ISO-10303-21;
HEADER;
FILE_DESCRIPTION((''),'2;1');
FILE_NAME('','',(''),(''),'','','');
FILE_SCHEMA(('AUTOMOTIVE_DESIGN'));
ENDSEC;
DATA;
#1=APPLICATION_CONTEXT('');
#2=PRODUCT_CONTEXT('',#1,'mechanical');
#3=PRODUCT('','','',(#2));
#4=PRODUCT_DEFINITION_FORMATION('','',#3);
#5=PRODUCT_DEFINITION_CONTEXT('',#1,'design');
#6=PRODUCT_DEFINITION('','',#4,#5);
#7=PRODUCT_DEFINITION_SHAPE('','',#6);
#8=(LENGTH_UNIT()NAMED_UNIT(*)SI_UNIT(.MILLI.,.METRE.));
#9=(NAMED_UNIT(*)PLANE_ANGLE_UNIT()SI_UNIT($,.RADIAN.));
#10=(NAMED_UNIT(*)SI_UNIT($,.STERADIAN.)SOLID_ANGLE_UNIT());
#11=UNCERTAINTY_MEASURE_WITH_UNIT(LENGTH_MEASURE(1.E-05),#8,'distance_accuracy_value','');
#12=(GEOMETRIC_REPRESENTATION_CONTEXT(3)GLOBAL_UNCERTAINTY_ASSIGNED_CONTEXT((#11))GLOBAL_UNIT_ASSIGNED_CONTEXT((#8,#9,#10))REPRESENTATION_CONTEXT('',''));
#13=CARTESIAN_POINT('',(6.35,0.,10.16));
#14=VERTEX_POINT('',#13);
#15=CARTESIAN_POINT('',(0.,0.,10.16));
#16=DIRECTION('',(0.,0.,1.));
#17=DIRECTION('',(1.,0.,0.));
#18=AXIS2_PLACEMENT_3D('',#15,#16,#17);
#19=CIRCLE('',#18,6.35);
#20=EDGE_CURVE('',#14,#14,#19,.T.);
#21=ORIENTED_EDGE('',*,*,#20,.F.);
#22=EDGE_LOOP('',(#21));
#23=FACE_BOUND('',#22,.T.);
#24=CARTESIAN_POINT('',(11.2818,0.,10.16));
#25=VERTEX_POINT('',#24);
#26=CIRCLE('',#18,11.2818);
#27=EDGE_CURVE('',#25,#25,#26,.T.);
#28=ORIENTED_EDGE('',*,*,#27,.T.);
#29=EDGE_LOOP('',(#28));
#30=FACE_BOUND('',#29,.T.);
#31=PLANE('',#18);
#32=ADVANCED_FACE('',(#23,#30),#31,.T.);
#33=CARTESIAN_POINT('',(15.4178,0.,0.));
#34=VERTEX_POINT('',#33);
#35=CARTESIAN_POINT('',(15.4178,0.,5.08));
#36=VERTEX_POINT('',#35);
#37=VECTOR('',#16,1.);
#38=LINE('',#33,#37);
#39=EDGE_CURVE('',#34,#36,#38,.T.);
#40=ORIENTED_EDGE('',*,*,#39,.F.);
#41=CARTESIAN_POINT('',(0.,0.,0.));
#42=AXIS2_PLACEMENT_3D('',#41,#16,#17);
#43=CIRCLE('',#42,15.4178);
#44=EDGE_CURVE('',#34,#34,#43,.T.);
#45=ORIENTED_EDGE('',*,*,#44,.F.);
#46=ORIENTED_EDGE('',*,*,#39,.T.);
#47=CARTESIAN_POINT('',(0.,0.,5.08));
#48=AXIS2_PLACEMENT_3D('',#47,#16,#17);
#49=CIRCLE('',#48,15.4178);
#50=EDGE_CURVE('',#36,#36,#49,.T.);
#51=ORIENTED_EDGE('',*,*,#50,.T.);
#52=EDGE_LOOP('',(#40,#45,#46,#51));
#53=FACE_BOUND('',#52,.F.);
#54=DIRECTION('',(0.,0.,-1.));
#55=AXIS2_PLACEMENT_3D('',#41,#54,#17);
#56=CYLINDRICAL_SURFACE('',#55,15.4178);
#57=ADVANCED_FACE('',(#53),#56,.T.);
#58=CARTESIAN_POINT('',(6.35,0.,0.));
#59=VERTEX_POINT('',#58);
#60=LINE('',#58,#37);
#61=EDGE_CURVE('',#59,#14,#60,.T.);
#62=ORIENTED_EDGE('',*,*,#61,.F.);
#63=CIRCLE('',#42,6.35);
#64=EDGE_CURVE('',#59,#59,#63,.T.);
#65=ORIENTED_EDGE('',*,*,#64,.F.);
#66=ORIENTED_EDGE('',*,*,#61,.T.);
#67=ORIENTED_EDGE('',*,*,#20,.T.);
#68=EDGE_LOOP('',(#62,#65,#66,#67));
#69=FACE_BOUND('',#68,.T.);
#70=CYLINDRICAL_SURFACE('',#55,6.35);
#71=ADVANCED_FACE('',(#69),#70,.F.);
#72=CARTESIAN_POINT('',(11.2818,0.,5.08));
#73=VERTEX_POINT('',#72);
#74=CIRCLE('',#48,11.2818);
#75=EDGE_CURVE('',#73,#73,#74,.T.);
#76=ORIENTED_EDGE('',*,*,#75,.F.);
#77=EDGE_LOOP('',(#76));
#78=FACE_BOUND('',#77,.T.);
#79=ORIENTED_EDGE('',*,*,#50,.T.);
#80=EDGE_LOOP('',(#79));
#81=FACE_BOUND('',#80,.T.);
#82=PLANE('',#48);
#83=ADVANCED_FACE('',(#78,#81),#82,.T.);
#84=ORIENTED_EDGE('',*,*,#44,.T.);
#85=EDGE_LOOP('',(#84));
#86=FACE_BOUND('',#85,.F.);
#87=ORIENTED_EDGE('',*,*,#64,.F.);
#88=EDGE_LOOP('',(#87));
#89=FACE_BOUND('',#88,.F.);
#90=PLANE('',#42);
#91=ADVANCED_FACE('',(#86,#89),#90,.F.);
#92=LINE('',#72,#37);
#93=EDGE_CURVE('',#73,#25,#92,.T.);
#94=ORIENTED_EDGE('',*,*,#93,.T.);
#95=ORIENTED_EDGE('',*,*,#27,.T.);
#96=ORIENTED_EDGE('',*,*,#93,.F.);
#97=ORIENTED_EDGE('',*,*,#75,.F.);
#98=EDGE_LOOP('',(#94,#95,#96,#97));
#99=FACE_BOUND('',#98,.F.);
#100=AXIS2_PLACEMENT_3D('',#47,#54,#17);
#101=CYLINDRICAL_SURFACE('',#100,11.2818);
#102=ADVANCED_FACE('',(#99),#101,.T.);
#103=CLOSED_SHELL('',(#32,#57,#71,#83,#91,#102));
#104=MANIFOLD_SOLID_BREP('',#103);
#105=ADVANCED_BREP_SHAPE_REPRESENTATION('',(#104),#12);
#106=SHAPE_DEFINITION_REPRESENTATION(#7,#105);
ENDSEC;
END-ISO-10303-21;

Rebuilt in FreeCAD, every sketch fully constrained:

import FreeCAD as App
import Part
import Sketcher

V = App.Vector
Q = App.Units.Quantity

doc = App.newDocument("Part")
body = doc.addObject("PartDesign::Body", "Body")

# Sketch on XY plane
sketch1 = body.newObject("Sketcher::SketchObject", "Sketch")
sketch1.AttachmentSupport = (doc.getObject("XY_Plane"), [""])
sketch1.MapMode = "FlatFace"
sketch1.addGeometry(Part.Circle(V(0, 0, 0), V(0, 0, 1), 15), False)
sketch1.addGeometry(Part.Circle(V(0, 0, 0), V(0, 0, 1), 6), False)
sketch1.addConstraint(Sketcher.Constraint("Coincident", 0, 3, -1, 1))
sketch1.addConstraint(Sketcher.Constraint("Coincident", 1, 3, -1, 1))
sketch1.addConstraint(Sketcher.Constraint("Diameter", 1, Q("0.5 in")))
sketch1.addConstraint(Sketcher.Constraint("Diameter", 0, Q("1.214 in")))
pad1 = body.newObject("PartDesign::Pad", "Pad")
pad1.Profile = sketch1
pad1.Length = Q("0.2 in")

# Sketch on XY plane
sketch2 = body.newObject("Sketcher::SketchObject", "Sketch001")
sketch2.AttachmentSupport = (doc.getObject("XY_Plane"), [""])
sketch2.MapMode = "FlatFace"
sketch2.AttachmentOffset = App.Placement(V(0, 0, 0.2 * 25.4), App.Rotation())
sketch2.addGeometry(Part.Circle(V(0, 0, 0), V(0, 0, 1), 11), False)
sketch2.addGeometry(Part.Circle(V(0, 0, 0), V(0, 0, 1), 6), False)
sketch2.addConstraint(Sketcher.Constraint("Coincident", 0, 3, -1, 1))
sketch2.addConstraint(Sketcher.Constraint("Coincident", 1, 3, -1, 1))
sketch2.addConstraint(Sketcher.Constraint("Diameter", 1, Q("0.5 in")))
sketch2.addConstraint(Sketcher.Constraint("Diameter", 0, Q("22.5636 mm")))
pad2 = body.newObject("PartDesign::Pad", "Pad001")
pad2.Profile = sketch2
pad2.Length = Q("0.2 in")

doc.recompute()
